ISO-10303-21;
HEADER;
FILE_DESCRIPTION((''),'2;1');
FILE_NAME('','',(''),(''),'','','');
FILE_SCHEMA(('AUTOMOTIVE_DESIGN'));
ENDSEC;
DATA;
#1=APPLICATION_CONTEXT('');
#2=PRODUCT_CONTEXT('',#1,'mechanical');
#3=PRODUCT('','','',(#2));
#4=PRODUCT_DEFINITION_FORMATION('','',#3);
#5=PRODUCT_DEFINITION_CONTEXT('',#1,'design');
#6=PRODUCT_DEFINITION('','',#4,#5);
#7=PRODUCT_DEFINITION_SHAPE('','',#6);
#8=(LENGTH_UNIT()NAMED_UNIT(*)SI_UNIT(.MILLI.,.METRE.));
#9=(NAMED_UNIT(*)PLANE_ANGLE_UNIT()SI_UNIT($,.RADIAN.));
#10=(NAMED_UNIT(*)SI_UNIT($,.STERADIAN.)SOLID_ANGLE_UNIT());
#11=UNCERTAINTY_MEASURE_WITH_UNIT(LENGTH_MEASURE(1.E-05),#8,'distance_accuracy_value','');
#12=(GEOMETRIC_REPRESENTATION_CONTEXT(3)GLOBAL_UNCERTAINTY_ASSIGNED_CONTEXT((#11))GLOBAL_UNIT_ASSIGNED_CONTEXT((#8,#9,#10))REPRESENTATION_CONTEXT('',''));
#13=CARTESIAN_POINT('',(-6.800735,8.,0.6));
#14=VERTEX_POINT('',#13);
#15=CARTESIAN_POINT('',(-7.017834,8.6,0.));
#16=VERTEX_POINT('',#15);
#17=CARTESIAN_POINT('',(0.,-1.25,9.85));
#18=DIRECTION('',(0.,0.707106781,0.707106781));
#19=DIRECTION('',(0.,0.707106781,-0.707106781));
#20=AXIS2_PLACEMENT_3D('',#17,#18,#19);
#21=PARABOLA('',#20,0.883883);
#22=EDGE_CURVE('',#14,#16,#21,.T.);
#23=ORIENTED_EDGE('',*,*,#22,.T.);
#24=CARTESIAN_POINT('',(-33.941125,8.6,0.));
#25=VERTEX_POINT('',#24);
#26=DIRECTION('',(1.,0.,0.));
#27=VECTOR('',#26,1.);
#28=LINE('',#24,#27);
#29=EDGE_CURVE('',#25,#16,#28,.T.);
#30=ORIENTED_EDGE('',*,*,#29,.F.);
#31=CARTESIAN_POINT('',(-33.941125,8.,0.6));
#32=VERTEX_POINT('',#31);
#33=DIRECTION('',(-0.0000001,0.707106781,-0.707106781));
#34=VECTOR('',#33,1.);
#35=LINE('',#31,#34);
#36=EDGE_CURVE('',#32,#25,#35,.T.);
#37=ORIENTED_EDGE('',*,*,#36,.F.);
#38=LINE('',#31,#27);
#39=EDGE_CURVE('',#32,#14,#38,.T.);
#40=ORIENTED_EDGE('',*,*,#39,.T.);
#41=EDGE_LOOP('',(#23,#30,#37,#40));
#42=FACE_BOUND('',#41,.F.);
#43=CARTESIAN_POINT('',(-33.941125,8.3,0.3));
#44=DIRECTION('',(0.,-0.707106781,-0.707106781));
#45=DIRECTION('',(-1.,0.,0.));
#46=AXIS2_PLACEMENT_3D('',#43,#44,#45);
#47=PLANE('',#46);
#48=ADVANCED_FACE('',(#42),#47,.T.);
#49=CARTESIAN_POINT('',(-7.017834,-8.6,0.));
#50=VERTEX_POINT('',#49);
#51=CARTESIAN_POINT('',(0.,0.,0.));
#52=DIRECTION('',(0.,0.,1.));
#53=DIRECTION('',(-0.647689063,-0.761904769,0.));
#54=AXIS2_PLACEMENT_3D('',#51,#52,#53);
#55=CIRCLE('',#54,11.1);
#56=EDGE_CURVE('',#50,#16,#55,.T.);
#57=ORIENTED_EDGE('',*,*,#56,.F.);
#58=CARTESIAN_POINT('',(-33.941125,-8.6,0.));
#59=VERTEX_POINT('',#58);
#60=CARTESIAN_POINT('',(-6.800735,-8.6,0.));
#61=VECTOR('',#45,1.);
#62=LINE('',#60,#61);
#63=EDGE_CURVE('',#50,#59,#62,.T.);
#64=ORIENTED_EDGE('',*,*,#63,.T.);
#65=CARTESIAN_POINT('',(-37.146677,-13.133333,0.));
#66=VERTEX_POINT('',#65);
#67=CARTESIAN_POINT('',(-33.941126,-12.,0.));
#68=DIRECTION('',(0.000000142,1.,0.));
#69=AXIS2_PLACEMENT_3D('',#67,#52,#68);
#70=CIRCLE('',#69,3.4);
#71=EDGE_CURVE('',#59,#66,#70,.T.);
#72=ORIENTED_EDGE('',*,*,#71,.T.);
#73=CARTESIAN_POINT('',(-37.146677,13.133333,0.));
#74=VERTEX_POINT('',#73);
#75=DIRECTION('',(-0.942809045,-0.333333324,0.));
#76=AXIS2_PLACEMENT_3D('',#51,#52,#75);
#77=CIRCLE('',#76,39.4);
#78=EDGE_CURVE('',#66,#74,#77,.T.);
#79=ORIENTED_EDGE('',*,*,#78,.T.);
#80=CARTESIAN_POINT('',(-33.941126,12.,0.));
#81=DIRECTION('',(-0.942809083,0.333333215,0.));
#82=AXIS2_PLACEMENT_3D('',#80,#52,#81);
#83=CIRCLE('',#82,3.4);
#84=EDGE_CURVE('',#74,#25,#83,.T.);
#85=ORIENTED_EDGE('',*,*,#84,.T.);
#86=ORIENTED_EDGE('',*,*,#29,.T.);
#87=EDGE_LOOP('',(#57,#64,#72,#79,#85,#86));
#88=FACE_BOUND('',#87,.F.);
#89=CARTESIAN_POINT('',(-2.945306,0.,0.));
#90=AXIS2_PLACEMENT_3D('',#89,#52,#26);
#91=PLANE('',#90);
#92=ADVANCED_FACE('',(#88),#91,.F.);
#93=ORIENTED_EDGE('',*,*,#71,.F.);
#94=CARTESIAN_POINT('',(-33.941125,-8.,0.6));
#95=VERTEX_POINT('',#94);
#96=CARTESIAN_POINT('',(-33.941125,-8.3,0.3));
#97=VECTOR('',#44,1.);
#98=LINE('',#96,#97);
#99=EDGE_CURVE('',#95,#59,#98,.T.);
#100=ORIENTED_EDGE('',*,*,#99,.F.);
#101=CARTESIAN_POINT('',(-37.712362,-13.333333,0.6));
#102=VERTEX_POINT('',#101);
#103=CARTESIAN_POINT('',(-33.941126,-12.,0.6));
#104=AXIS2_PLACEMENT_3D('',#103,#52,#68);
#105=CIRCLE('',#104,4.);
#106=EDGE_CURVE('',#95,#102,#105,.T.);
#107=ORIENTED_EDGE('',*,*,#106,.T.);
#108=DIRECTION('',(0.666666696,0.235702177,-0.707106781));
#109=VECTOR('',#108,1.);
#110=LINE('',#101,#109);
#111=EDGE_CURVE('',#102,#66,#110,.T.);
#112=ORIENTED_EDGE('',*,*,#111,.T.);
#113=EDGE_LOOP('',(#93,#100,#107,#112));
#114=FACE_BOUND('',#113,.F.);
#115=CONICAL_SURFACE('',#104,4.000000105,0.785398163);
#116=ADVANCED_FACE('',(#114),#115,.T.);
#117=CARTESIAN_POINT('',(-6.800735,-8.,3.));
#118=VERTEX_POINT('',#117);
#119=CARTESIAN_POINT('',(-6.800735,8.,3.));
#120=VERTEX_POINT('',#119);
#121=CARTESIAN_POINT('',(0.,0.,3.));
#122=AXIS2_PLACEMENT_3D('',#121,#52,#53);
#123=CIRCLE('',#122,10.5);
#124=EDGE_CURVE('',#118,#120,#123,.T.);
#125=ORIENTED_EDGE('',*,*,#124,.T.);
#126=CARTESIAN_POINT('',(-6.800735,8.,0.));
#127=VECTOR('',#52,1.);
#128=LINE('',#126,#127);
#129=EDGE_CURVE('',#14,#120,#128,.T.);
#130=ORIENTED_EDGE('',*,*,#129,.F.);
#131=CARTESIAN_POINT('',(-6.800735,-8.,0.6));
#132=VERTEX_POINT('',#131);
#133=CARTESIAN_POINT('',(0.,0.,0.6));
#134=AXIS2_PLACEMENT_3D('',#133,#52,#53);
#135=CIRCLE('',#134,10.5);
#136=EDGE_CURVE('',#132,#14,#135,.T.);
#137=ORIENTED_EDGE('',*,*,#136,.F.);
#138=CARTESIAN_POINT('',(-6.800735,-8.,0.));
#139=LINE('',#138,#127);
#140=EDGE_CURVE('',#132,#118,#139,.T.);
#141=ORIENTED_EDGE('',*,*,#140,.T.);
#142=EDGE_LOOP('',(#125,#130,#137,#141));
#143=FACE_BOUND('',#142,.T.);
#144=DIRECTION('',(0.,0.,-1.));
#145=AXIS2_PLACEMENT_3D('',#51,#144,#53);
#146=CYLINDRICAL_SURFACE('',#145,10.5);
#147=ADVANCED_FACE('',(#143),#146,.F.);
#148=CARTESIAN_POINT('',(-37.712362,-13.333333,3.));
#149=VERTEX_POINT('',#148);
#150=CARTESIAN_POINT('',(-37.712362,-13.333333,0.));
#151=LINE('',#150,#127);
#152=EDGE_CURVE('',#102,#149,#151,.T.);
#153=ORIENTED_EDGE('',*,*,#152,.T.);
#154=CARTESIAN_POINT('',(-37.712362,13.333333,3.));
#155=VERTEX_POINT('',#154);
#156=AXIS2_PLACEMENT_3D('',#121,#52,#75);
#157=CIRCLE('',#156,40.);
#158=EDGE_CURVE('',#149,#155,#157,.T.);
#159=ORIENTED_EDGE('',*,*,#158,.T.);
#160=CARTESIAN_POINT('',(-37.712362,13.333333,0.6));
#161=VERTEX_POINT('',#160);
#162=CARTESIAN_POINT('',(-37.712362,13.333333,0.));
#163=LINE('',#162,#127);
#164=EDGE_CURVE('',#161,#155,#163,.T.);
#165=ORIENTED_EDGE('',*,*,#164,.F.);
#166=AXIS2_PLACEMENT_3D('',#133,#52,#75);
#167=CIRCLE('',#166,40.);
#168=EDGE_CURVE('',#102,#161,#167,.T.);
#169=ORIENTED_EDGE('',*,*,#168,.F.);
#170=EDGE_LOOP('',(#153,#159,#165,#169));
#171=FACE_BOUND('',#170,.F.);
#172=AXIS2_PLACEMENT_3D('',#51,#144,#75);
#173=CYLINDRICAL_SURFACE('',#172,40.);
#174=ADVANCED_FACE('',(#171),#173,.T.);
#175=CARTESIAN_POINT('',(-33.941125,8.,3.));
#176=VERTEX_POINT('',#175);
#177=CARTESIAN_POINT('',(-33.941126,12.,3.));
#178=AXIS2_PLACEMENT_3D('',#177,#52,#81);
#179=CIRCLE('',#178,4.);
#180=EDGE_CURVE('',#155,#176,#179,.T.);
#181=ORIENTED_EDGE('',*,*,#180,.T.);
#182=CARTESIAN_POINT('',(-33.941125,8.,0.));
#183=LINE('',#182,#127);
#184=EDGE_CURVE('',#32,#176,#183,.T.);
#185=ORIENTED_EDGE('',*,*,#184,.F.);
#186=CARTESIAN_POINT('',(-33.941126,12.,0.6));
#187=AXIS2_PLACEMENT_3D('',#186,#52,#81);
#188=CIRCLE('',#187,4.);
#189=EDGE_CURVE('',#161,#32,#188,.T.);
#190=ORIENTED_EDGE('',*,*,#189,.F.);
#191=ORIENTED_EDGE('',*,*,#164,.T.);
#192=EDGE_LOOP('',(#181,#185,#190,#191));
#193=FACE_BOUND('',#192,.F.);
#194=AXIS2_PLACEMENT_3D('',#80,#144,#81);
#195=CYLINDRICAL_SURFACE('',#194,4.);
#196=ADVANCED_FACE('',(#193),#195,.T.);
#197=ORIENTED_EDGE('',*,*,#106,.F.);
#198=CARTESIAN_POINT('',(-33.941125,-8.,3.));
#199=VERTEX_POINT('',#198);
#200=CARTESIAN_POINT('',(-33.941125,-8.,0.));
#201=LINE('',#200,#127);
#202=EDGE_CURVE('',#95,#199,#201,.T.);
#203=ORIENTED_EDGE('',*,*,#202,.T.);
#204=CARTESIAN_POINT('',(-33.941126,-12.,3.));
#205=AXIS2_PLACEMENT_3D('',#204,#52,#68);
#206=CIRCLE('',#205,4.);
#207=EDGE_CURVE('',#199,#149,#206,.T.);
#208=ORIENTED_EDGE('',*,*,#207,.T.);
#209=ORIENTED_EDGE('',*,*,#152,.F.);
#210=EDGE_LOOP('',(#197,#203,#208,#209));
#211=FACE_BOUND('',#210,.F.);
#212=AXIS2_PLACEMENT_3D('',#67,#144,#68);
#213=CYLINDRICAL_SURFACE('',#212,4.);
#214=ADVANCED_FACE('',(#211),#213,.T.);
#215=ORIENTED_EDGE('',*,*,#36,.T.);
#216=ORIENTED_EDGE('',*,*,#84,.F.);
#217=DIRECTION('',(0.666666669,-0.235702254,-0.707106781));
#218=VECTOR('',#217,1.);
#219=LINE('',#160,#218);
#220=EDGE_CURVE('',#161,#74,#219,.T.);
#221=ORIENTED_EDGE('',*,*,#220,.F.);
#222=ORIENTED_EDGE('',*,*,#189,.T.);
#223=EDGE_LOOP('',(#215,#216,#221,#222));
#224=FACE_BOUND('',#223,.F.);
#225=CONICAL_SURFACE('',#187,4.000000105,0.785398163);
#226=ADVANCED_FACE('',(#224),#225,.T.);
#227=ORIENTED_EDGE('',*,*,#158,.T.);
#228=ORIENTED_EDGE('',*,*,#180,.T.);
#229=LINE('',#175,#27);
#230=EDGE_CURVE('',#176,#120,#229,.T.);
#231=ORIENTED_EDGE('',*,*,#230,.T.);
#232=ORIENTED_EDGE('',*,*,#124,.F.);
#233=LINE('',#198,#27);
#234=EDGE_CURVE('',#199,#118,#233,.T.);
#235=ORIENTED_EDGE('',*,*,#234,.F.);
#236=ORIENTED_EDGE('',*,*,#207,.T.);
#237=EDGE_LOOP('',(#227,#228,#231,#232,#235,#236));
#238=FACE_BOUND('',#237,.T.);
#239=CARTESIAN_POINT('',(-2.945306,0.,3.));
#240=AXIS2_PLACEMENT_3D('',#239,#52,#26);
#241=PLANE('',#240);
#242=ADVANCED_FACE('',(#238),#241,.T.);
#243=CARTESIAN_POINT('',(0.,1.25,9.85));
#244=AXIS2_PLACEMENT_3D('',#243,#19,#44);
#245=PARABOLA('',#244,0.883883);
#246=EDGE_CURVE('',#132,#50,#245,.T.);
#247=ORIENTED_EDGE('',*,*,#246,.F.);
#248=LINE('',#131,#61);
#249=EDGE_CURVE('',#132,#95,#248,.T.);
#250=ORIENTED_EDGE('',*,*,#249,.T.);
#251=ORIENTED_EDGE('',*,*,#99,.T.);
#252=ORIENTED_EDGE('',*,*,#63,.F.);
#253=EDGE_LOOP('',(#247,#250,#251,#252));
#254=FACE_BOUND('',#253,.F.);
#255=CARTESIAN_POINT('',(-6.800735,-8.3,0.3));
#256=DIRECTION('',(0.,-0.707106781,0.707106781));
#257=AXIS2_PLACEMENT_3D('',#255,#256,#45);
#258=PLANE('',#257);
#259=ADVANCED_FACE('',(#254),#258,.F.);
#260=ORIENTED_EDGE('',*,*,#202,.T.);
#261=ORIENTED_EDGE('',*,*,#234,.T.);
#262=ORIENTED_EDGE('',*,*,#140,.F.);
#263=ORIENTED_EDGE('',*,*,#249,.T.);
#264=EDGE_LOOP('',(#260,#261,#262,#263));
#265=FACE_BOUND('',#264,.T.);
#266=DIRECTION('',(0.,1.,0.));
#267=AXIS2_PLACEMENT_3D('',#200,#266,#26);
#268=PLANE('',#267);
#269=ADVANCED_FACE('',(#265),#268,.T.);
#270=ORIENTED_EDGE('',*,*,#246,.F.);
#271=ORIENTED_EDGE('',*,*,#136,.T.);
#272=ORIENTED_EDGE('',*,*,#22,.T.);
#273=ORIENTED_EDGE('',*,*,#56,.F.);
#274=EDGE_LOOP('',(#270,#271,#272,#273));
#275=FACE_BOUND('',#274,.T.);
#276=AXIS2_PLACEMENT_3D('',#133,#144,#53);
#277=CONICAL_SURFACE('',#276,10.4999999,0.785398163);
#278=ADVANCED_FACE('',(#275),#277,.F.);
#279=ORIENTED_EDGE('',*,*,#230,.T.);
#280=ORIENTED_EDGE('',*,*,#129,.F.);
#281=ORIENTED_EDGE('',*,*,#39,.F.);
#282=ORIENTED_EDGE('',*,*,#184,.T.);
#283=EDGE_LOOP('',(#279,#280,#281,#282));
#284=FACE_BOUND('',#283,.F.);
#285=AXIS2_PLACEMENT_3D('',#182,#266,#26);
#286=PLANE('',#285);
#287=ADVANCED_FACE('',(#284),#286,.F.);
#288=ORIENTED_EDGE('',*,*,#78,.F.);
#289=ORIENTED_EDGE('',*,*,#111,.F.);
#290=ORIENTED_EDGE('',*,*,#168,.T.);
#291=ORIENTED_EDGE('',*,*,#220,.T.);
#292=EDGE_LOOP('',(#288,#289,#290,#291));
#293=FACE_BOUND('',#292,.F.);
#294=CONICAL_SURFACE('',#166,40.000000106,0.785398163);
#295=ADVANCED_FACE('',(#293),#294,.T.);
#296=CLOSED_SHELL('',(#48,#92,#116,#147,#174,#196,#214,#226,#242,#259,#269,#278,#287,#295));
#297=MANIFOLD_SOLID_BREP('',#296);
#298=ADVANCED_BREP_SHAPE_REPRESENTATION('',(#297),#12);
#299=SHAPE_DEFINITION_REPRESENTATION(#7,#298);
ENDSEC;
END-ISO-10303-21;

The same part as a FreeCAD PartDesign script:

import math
import FreeCAD as App
import Part
import Sketcher
from FreeCAD import Vector


def edges_at(feature, points):
    """Names of the edges that pass closest to the given points."""
    edges = feature.Shape.Edges
    near = lambda p: min(range(len(edges)), key=lambda i: edges[i].distToShape(Part.Vertex(*p))[0])
    return sorted({f"Edge{near(p) + 1}" for p in points})

doc = App.newDocument("Part")
body = doc.addObject("PartDesign::Body", "Body")

# Sketch on XY plane
sketch1 = body.newObject("Sketcher::SketchObject", "Sketch")
sketch1.AttachmentSupport = (doc.getObject("XY_Plane"), [""])
sketch1.MapMode = "FlatFace"
sketch1.addGeometry(Part.ArcOfCircle(Part.Circle(Vector(0, 0, 0), Vector(0, 0, 1), 40), math.radians(-160.52878), math.radians(160.52878)), False)
sketch1.addGeometry(Part.ArcOfCircle(Part.Circle(Vector(-33.941126, 12, 0), Vector(0, 0, 1), 4), math.radians(160.528787), math.radians(270.000008)), False)
sketch1.addGeometry(Part.LineSegment(Vector(-33.941125, 8, 0), Vector(-6.800735, 8, 0)), False)
sketch1.addGeometry(Part.ArcOfCircle(Part.Circle(Vector(0, 0, 0), Vector(0, 0, 1), 10.5), math.radians(-130.367593), math.radians(130.367593)), False)
sketch1.addGeometry(Part.LineSegment(Vector(-6.800735, -8, 0), Vector(-33.941125, -8, 0)), False)
sketch1.addGeometry(Part.ArcOfCircle(Part.Circle(Vector(-33.941126, -12, 0), Vector(0, 0, 1), 4), math.radians(89.999992), math.radians(199.471213)), False)
sketch1.addConstraint(Sketcher.Constraint("Tangent", 0, 2, 1, 1))
sketch1.addConstraint(Sketcher.Constraint("Tangent", 1, 2, 2, 1))
sketch1.addConstraint(Sketcher.Constraint("Coincident", 2, 2, 3, 2))
sketch1.addConstraint(Sketcher.Constraint("Coincident", 3, 1, 4, 1))
sketch1.addConstraint(Sketcher.Constraint("Tangent", 4, 2, 5, 1))
sketch1.addConstraint(Sketcher.Constraint("Tangent", 5, 2, 0, 1))
sketch1.addConstraint(Sketcher.Constraint("Horizontal", 2))
sketch1.addConstraint(Sketcher.Constraint("Horizontal", 4))
sketch1.addConstraint(Sketcher.Constraint("Coincident", 0, 3, -1, 1))
sketch1.addConstraint(Sketcher.Constraint("Coincident", 3, 3, -1, 1))
sketch1.addConstraint(Sketcher.Constraint("Equal", 1, 5))
sketch1.addConstraint(Sketcher.Constraint("Vertical", 1, 3, 5, 3))
sketch1.addConstraint(Sketcher.Constraint("Radius", 0, 40.0))
sketch1.addConstraint(Sketcher.Constraint("Radius", 1, 4.0))
sketch1.addConstraint(Sketcher.Constraint("Radius", 3, 10.5))
sketch1.addConstraint(Sketcher.Constraint("DistanceY", -1, 1, 1, 3, 12.0))
pad1 = body.newObject("PartDesign::Pad", "Pad")
pad1.Profile = sketch1
pad1.Length = 3
doc.recompute()

chamfer = body.newObject("PartDesign::Chamfer", "Chamfer")
chamfer.Base = (pad1, edges_at(pad1, [
    (-37.207, -9.691, 0),
    (40, 0, 0),
    (-37.207, 9.691, 0),
    (-20.371, 8, 0),
    (10.5, 0, 0),
    (-20.371, -8, 0),
]))
chamfer.Size = 0.6

doc.recompute()
